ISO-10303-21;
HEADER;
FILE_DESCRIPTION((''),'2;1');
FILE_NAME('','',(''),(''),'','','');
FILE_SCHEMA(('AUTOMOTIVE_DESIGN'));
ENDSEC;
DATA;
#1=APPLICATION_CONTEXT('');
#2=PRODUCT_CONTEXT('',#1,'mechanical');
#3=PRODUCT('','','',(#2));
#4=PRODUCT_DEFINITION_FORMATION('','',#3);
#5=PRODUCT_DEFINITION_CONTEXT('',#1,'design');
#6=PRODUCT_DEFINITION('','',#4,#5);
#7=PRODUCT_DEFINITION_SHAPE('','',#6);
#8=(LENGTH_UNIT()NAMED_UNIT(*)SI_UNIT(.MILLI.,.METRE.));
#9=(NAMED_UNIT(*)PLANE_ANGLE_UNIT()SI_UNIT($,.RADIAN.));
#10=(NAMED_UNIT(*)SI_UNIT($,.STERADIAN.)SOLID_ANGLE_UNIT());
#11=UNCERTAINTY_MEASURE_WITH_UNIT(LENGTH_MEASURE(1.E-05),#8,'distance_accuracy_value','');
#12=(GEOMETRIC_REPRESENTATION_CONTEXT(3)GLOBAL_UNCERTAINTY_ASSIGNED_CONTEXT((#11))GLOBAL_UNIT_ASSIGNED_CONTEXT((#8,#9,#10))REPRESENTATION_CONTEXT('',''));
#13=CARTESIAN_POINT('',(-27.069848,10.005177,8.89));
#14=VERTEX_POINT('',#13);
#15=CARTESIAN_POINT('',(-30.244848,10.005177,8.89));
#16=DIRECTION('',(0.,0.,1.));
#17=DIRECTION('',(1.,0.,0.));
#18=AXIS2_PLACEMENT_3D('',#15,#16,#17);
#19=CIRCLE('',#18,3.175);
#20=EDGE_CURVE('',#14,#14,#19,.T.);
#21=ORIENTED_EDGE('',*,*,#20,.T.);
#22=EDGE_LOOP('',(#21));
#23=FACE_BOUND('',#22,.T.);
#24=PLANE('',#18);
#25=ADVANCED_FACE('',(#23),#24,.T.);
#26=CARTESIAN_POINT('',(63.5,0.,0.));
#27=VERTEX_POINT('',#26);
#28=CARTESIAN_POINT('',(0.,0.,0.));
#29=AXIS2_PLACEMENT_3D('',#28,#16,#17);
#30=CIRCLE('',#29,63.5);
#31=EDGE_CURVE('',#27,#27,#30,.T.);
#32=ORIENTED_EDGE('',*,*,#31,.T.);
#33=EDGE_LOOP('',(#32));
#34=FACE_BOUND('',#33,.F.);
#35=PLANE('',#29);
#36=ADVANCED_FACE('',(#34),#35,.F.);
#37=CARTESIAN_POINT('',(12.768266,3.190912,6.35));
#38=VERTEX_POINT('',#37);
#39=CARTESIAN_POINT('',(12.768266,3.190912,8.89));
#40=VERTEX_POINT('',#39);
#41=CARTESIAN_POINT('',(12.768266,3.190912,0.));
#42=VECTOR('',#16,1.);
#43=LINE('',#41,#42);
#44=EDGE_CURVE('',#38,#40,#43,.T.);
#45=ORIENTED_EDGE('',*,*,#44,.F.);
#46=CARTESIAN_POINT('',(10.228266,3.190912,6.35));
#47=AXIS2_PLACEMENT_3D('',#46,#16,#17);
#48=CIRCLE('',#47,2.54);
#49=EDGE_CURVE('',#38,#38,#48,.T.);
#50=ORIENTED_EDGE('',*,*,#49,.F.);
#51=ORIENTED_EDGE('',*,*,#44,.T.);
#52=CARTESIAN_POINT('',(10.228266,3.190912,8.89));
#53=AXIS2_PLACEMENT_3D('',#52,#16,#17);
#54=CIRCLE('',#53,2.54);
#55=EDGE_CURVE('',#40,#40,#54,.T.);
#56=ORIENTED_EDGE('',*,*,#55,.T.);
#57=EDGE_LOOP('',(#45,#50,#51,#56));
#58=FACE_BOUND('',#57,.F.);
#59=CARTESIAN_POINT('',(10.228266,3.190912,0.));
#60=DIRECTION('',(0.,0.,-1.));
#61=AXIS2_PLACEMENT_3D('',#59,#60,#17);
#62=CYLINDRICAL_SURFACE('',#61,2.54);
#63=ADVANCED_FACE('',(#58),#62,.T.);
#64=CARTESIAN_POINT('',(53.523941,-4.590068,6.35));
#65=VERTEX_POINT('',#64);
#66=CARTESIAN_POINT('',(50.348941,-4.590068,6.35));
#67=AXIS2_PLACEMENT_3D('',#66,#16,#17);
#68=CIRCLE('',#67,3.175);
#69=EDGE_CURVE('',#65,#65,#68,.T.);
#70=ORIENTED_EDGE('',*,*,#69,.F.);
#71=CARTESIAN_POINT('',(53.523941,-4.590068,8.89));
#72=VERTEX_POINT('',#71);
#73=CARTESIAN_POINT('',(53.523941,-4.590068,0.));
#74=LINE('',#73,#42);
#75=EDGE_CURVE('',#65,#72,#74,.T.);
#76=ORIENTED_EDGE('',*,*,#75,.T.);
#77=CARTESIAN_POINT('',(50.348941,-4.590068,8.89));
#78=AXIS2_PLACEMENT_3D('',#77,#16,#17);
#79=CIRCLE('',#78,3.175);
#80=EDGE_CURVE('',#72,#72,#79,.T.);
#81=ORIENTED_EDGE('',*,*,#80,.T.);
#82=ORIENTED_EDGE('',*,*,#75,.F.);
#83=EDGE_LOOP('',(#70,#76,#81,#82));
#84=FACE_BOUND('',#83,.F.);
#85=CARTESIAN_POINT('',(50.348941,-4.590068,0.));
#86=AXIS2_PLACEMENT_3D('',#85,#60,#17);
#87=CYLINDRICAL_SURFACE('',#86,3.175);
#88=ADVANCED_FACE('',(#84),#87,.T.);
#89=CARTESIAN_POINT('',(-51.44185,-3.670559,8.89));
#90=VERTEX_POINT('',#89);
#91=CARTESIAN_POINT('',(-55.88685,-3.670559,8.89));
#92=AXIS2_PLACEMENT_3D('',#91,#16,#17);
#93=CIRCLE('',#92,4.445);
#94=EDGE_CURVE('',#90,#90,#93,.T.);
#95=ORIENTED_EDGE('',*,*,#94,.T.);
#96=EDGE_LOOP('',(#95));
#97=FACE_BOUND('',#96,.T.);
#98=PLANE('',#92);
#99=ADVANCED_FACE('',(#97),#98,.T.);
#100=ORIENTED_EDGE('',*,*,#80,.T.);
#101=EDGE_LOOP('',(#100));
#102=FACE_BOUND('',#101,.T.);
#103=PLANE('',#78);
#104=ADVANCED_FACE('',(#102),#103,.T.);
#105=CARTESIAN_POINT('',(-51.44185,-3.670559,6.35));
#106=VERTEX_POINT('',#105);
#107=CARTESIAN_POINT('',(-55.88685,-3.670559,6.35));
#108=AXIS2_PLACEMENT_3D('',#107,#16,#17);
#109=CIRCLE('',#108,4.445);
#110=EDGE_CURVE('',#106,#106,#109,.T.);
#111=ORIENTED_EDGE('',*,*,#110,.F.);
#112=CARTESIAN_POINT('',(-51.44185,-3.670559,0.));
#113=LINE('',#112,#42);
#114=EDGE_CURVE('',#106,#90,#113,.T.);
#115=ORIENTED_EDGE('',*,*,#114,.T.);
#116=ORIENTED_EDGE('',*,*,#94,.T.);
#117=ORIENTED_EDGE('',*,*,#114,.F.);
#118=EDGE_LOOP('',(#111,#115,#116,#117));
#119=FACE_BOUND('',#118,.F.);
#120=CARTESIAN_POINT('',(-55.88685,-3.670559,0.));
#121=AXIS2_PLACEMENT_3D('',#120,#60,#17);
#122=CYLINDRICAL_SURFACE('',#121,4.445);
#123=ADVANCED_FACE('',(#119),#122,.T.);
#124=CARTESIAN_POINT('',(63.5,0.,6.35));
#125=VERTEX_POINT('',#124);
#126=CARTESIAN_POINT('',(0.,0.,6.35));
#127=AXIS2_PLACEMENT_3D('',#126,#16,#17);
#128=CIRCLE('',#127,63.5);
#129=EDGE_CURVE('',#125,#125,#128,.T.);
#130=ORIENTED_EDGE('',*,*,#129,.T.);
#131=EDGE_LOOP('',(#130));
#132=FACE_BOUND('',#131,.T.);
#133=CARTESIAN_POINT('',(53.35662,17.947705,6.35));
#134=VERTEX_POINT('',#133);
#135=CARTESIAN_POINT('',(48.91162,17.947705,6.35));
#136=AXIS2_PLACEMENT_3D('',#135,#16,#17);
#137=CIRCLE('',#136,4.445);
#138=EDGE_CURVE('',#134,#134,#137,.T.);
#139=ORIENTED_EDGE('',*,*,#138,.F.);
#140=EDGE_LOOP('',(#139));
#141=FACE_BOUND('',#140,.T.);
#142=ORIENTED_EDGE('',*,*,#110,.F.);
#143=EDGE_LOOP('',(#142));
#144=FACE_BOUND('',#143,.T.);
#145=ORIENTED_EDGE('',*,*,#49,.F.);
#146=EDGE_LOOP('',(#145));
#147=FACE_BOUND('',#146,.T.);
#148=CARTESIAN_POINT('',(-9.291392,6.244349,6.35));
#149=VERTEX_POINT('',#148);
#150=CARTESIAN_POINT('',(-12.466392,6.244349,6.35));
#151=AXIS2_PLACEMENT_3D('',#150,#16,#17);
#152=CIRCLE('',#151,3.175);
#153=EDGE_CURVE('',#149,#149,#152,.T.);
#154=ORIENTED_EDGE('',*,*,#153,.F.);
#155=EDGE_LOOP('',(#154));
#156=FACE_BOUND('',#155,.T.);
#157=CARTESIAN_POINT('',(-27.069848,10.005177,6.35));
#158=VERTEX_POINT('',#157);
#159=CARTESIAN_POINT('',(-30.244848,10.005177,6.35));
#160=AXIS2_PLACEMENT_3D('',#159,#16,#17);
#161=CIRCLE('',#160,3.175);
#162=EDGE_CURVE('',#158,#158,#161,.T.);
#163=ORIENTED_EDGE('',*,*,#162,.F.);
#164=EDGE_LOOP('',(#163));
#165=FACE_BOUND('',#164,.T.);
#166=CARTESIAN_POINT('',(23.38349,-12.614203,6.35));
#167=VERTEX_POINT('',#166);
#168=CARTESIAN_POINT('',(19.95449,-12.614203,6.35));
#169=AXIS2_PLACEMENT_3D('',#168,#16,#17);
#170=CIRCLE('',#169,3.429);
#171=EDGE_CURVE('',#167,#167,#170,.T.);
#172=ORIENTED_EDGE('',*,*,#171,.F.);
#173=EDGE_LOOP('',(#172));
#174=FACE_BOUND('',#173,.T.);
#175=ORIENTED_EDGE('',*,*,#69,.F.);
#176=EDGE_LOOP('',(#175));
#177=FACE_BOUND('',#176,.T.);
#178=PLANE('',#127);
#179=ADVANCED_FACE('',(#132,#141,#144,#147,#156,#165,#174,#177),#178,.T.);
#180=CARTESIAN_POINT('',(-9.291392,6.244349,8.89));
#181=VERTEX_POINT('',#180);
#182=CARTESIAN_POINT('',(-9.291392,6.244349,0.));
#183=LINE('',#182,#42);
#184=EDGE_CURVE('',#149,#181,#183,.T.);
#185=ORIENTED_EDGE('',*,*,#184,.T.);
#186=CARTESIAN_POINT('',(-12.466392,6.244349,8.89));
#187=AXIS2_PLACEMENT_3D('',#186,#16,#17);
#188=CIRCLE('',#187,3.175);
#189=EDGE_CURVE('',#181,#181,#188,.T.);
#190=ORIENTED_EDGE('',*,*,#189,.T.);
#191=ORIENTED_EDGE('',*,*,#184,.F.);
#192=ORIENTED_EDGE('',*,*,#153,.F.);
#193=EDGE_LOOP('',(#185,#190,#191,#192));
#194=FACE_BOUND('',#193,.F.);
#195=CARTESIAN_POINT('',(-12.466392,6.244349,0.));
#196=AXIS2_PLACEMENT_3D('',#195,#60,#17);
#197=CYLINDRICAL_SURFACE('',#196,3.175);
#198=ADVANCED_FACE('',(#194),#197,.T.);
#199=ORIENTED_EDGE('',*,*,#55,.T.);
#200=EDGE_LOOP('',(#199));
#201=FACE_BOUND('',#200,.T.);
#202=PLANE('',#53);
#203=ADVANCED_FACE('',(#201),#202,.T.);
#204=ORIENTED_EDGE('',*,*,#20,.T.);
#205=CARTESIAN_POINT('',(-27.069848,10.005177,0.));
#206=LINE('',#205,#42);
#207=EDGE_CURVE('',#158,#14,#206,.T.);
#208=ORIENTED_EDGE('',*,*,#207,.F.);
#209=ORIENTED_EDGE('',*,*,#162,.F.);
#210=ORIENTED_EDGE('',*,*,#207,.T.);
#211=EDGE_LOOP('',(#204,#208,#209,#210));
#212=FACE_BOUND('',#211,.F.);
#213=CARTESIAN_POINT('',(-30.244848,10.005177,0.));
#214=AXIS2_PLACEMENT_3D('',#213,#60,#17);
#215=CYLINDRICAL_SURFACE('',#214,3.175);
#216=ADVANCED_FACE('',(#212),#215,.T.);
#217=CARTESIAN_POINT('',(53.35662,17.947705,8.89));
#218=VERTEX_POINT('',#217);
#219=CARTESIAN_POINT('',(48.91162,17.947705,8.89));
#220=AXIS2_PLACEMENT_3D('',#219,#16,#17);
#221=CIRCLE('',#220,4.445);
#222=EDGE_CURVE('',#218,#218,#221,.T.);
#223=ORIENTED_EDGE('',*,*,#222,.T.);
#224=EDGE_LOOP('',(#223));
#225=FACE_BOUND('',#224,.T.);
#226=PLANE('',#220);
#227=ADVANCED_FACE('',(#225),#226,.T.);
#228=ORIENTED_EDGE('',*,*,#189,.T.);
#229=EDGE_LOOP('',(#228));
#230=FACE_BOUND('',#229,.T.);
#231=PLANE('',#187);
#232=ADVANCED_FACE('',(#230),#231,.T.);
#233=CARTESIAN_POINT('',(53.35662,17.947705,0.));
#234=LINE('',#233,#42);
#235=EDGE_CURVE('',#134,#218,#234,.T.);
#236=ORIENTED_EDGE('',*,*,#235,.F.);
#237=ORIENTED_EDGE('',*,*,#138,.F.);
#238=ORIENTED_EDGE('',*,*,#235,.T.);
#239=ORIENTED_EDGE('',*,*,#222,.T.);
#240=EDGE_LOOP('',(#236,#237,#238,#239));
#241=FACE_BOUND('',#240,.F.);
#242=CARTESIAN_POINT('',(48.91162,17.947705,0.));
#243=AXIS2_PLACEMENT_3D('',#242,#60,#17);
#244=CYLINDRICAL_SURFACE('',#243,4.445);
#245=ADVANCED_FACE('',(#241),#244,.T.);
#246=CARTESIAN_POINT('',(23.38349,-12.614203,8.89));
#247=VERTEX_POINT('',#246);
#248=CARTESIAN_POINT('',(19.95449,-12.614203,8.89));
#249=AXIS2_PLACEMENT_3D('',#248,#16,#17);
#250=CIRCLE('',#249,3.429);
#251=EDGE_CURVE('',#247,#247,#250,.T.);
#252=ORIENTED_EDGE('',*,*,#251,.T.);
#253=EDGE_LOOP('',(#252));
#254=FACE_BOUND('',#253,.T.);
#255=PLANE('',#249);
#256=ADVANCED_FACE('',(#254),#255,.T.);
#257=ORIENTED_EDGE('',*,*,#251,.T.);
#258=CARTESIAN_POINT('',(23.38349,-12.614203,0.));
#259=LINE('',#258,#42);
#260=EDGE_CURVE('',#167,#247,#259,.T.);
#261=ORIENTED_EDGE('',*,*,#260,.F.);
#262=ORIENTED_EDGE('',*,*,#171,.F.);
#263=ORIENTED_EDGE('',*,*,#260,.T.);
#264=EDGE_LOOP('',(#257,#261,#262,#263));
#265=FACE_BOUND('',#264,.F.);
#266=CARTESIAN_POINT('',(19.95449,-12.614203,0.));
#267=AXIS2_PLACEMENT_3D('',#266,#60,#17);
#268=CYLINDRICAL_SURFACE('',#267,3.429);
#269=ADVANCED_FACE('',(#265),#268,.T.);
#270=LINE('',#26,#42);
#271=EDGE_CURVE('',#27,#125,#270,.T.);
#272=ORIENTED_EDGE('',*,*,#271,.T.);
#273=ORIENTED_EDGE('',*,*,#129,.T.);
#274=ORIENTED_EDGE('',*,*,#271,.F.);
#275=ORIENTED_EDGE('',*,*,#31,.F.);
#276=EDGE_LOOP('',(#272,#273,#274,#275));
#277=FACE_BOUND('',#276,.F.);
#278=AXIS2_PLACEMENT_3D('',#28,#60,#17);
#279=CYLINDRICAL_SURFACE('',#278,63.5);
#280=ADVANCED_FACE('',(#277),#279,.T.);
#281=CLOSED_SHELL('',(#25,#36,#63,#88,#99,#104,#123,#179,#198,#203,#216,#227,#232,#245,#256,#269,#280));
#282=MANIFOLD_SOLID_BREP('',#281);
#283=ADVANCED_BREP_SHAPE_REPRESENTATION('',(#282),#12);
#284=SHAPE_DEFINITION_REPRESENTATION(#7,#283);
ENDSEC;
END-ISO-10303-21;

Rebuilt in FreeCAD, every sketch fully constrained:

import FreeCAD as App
import Part
import Sketcher
Q = App.Units.Quantity

doc = App.newDocument("Part")
params = doc.addObject("Spreadsheet::Sheet", "Params")
for row, (alias, value) in enumerate([
    ("sketch1_diameter", "5 in"),
    ("sketch1_diameter2", "0.2 in"),
    ("sketch1_diameter3", "0.35 in"),
    ("sketch1_diameter4", "0.27 in"),
    ("sketch1_diameter5", "0.25 in"),
    ("pad1_length", "0.25 in"),
    ("sketch2_diameter", "0.2 in"),
    ("sketch2_diameter2", "0.35 in"),
    ("sketch2_diameter3", "0.25 in"),
    ("sketch2_diameter4", "0.27 in"),
    ("pad2_length", "0.35 in"),
], start=1):
    params.set(f"A{row}", alias)
    params.set(f"B{row}", "=" + value)
    params.setAlias(f"B{row}", alias)

body = doc.addObject("PartDesign::Body", "Body")

sketch1 = body.newObject("Sketcher::SketchObject", "Sketch")
sketch1.AttachmentSupport = (doc.getObject("XY_Plane"), [""])
sketch1.MapMode = "FlatFace"
sketch1.addGeometry([
    Part.Circle(App.Vector(0, 0, 0), App.Vector(0, 0, 1), 63.5),
    Part.Circle(App.Vector(-55.9, -3.7, 0), App.Vector(0, 0, 1), 4.4),
    Part.Circle(App.Vector(20, -12.6, 0), App.Vector(0, 0, 1), 3.4),
    Part.Circle(App.Vector(50.3, -4.6, 0), App.Vector(0, 0, 1), 3.2),
    Part.Circle(App.Vector(-12.5, 6.2, 0), App.Vector(0, 0, 1), 3.2),
    Part.Circle(App.Vector(-30.2, 10, 0), App.Vector(0, 0, 1), 3.2),
    Part.Circle(App.Vector(10.2, 3.2, 0), App.Vector(0, 0, 1), 2.5),
    Part.Circle(App.Vector(48.9, 17.9, 0), App.Vector(0, 0, 1), 4.4),
], False)
sketch1.addConstraint([
    Sketcher.Constraint("Coincident", 0, 3, -1, 1),
    Sketcher.Constraint("Equal", 3, 4),
    Sketcher.Constraint("Equal", 4, 5),
    Sketcher.Constraint("Equal", 1, 7),
    Sketcher.Constraint("Diameter", 0, Q("5 in")),
    Sketcher.Constraint("Diameter", 6, Q("0.2 in")),
    Sketcher.Constraint("Diameter", 1, Q("0.35 in")),
    Sketcher.Constraint("Diameter", 2, Q("0.27 in")),
    Sketcher.Constraint("Diameter", 3, Q("0.25 in")),
    Sketcher.Constraint("DistanceX", 1, 3, -1, 1, Q("55.88685 mm")),
    Sketcher.Constraint("DistanceY", 1, 3, -1, 1, Q("3.670559 mm")),
    Sketcher.Constraint("DistanceX", -1, 1, 2, 3, Q("19.95449 mm")),
    Sketcher.Constraint("DistanceX", -1, 1, 3, 3, Q("50.348941 mm")),
    Sketcher.Constraint("DistanceY", -1, 1, 4, 3, Q("6.244349 mm")),
    Sketcher.Constraint("DistanceX", 5, 3, -1, 1, Q("30.244848 mm")),
    Sketcher.Constraint("DistanceY", -1, 1, 6, 3, Q("3.190912 mm")),
    Sketcher.Constraint("DistanceX", -1, 1, 7, 3, Q("48.91162 mm")),
    Sketcher.Constraint("DistanceY", 3, 3, 1, 3, Q("0.919509 mm")),
    Sketcher.Constraint("DistanceY", 2, 3, 4, 3, Q("18.858552 mm")),
    Sketcher.Constraint("DistanceX", 1, 3, 4, 3, Q("43.420458 mm")),
    Sketcher.Constraint("DistanceY", 4, 3, 5, 3, Q("3.760828 mm")),
    Sketcher.Constraint("DistanceX", 4, 3, 6, 3, Q("22.694658 mm")),
    Sketcher.Constraint("DistanceY", -1, 1, 7, 3, Q("17.947705 mm")),
])
sketch1.setExpression("Constraints[4]", "Params.sketch1_diameter")
sketch1.setExpression("Constraints[5]", "Params.sketch1_diameter2")
sketch1.setExpression("Constraints[6]", "Params.sketch1_diameter3")
sketch1.setExpression("Constraints[7]", "Params.sketch1_diameter4")
sketch1.setExpression("Constraints[8]", "Params.sketch1_diameter5")
pad1 = body.newObject("PartDesign::Pad", "Pad")
pad1.Profile = sketch1
pad1.setExpression("Length", "Params.pad1_length")

sketch2 = body.newObject("Sketcher::SketchObject", "Sketch001")
sketch2.AttachmentSupport = (doc.getObject("XY_Plane"), [""])
sketch2.MapMode = "FlatFace"
sketch2.addGeometry([
    Part.Circle(App.Vector(-55.9, -3.7, 0), App.Vector(0, 0, 1), 4.4),
    Part.Circle(App.Vector(-30.2, 10, 0), App.Vector(0, 0, 1), 3.2),
    Part.Circle(App.Vector(-12.5, 6.2, 0), App.Vector(0, 0, 1), 3.2),
    Part.Circle(App.Vector(10.2, 3.2, 0), App.Vector(0, 0, 1), 2.5),
    Part.Circle(App.Vector(48.9, 17.9, 0), App.Vector(0, 0, 1), 4.4),
    Part.Circle(App.Vector(50.3, -4.6, 0), App.Vector(0, 0, 1), 3.2),
    Part.Circle(App.Vector(20, -12.6, 0), App.Vector(0, 0, 1), 3.4),
], False)
sketch2.addConstraint([
    Sketcher.Constraint("Equal", 1, 2),
    Sketcher.Constraint("Equal", 0, 4),
    Sketcher.Constraint("Equal", 2, 5),
    Sketcher.Constraint("Diameter", 3, Q("0.2 in")),
    Sketcher.Constraint("Diameter", 0, Q("0.35 in")),
    Sketcher.Constraint("Diameter", 1, Q("0.25 in")),
    Sketcher.Constraint("Diameter", 6, Q("0.27 in")),
    Sketcher.Constraint("DistanceX", 0, 3, -1, 1, Q("55.88685 mm")),
    Sketcher.Constraint("DistanceY", 0, 3, -1, 1, Q("3.670559 mm")),
    Sketcher.Constraint("DistanceX", 1, 3, -1, 1, Q("30.244848 mm")),
    Sketcher.Constraint("DistanceY", -1, 1, 2, 3, Q("6.244349 mm")),
    Sketcher.Constraint("DistanceY", -1, 1, 3, 3, Q("3.190912 mm")),
    Sketcher.Constraint("DistanceX", -1, 1, 4, 3, Q("48.91162 mm")),
    Sketcher.Constraint("DistanceX", -1, 1, 5, 3, Q("50.348941 mm")),
    Sketcher.Constraint("DistanceX", -1, 1, 6, 3, Q("19.95449 mm")),
    Sketcher.Constraint("DistanceY", 2, 3, 1, 3, Q("3.760828 mm")),
    Sketcher.Constraint("DistanceX", 0, 3, 2, 3, Q("43.420458 mm")),
    Sketcher.Constraint("DistanceX", 2, 3, 3, 3, Q("22.694658 mm")),
    Sketcher.Constraint("DistanceY", 5, 3, 3, 3, Q("7.78098 mm")),
    Sketcher.Constraint("DistanceY", 6, 3, 2, 3, Q("18.858552 mm")),
    Sketcher.Constraint("DistanceY", -1, 1, 4, 3, Q("17.947705 mm")),
])
sketch2.setExpression("Constraints[3]", "Params.sketch2_diameter")
sketch2.setExpression("Constraints[4]", "Params.sketch2_diameter2")
sketch2.setExpression("Constraints[5]", "Params.sketch2_diameter3")
sketch2.setExpression("Constraints[6]", "Params.sketch2_diameter4")
pad2 = body.newObject("PartDesign::Pad", "Pad001")
pad2.Profile = sketch2
pad2.setExpression("Length", "Params.pad2_length")

doc.recompute()
